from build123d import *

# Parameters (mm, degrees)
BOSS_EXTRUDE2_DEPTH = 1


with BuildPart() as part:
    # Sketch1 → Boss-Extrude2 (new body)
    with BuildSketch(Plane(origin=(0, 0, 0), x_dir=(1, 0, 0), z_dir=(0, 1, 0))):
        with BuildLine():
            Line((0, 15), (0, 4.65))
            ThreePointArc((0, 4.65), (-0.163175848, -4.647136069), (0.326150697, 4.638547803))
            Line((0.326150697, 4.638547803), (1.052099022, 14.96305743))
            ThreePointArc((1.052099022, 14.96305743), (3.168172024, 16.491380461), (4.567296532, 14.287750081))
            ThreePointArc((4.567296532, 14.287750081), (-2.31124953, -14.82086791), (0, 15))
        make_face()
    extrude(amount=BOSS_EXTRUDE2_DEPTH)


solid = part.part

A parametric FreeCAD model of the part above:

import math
import FreeCAD as App
import Part
import Sketcher
from FreeCAD import Vector
Q = App.Units.Quantity

doc = App.newDocument("Part")
body = doc.addObject("PartDesign::Body", "Body")

sketch1 = doc.addObject("Sketcher::SketchObject", "Sketch")
body.addObject(sketch1)
sketch1.AttachmentSupport = (doc.XZ_Plane, [""])
sketch1.MapMode = "FlatFace"
sketch1.addGeometry([
    Part.LineSegment(Vector(0, -4.65, 0), Vector(0, -15, 0)),
    Part.ArcOfCircle(Part.Circle(Vector(0, 0, 0), Vector(0, 0, 1), 15), math.radians(-72.272731), math.radians(270)),
    Part.ArcOfCircle(Part.Circle(Vector(2.829914, -14.730634, 0), Vector(0, 0, 1), 1.792943), math.radians(-172.551664), math.radians(14.300958)),
    Part.LineSegment(Vector(1.052099, -14.963057, 0), Vector(0.326151, -4.638548, 0)),
    Part.ArcOfCircle(Part.Circle(Vector(0, 0, 0), Vector(0, 0, 1), 4.65), math.radians(-85.977975), math.radians(270)),
], False)
sketch1.addConstraint([
    Sketcher.Constraint("Coincident", 0, 2, 1, 2),
    Sketcher.Constraint("Coincident", 1, 1, 2, 2),
    Sketcher.Constraint("Coincident", 2, 1, 3, 1),
    Sketcher.Constraint("Coincident", 3, 2, 4, 1),
    Sketcher.Constraint("Coincident", 4, 2, 0, 1),
    Sketcher.Constraint("Vertical", 0),
    Sketcher.Constraint("Coincident", 1, 3, -1, 1),
    Sketcher.Constraint("Coincident", 4, 3, -1, 1),
    Sketcher.Constraint("PointOnObject", 0, 2, -2),
    Sketcher.Constraint("Radius", 1, Q("15 mm")),
    Sketcher.Constraint("Radius", 4, Q("4.65 mm")),
    Sketcher.Constraint("Distance", 3, Q("10.35 mm")),
    Sketcher.Constraint("Radius", 2, Q("1.792943 mm")),
    Sketcher.Constraint("DistanceX", -1, 1, 2, 1, Q("1.052099 mm")),
    Sketcher.Constraint("DistanceY", 1, 1, -1, 1, Q("14.28775 mm")),
    Sketcher.Constraint("DistanceX", -1, 1, 3, 2, Q("0.326151 mm")),
])
pad1 = doc.addObject("PartDesign::Pad", "Pad")
body.addObject(pad1)
pad1.Profile = sketch1
pad1.Length = 1
pad1.Reversed = True

doc.recompute()
